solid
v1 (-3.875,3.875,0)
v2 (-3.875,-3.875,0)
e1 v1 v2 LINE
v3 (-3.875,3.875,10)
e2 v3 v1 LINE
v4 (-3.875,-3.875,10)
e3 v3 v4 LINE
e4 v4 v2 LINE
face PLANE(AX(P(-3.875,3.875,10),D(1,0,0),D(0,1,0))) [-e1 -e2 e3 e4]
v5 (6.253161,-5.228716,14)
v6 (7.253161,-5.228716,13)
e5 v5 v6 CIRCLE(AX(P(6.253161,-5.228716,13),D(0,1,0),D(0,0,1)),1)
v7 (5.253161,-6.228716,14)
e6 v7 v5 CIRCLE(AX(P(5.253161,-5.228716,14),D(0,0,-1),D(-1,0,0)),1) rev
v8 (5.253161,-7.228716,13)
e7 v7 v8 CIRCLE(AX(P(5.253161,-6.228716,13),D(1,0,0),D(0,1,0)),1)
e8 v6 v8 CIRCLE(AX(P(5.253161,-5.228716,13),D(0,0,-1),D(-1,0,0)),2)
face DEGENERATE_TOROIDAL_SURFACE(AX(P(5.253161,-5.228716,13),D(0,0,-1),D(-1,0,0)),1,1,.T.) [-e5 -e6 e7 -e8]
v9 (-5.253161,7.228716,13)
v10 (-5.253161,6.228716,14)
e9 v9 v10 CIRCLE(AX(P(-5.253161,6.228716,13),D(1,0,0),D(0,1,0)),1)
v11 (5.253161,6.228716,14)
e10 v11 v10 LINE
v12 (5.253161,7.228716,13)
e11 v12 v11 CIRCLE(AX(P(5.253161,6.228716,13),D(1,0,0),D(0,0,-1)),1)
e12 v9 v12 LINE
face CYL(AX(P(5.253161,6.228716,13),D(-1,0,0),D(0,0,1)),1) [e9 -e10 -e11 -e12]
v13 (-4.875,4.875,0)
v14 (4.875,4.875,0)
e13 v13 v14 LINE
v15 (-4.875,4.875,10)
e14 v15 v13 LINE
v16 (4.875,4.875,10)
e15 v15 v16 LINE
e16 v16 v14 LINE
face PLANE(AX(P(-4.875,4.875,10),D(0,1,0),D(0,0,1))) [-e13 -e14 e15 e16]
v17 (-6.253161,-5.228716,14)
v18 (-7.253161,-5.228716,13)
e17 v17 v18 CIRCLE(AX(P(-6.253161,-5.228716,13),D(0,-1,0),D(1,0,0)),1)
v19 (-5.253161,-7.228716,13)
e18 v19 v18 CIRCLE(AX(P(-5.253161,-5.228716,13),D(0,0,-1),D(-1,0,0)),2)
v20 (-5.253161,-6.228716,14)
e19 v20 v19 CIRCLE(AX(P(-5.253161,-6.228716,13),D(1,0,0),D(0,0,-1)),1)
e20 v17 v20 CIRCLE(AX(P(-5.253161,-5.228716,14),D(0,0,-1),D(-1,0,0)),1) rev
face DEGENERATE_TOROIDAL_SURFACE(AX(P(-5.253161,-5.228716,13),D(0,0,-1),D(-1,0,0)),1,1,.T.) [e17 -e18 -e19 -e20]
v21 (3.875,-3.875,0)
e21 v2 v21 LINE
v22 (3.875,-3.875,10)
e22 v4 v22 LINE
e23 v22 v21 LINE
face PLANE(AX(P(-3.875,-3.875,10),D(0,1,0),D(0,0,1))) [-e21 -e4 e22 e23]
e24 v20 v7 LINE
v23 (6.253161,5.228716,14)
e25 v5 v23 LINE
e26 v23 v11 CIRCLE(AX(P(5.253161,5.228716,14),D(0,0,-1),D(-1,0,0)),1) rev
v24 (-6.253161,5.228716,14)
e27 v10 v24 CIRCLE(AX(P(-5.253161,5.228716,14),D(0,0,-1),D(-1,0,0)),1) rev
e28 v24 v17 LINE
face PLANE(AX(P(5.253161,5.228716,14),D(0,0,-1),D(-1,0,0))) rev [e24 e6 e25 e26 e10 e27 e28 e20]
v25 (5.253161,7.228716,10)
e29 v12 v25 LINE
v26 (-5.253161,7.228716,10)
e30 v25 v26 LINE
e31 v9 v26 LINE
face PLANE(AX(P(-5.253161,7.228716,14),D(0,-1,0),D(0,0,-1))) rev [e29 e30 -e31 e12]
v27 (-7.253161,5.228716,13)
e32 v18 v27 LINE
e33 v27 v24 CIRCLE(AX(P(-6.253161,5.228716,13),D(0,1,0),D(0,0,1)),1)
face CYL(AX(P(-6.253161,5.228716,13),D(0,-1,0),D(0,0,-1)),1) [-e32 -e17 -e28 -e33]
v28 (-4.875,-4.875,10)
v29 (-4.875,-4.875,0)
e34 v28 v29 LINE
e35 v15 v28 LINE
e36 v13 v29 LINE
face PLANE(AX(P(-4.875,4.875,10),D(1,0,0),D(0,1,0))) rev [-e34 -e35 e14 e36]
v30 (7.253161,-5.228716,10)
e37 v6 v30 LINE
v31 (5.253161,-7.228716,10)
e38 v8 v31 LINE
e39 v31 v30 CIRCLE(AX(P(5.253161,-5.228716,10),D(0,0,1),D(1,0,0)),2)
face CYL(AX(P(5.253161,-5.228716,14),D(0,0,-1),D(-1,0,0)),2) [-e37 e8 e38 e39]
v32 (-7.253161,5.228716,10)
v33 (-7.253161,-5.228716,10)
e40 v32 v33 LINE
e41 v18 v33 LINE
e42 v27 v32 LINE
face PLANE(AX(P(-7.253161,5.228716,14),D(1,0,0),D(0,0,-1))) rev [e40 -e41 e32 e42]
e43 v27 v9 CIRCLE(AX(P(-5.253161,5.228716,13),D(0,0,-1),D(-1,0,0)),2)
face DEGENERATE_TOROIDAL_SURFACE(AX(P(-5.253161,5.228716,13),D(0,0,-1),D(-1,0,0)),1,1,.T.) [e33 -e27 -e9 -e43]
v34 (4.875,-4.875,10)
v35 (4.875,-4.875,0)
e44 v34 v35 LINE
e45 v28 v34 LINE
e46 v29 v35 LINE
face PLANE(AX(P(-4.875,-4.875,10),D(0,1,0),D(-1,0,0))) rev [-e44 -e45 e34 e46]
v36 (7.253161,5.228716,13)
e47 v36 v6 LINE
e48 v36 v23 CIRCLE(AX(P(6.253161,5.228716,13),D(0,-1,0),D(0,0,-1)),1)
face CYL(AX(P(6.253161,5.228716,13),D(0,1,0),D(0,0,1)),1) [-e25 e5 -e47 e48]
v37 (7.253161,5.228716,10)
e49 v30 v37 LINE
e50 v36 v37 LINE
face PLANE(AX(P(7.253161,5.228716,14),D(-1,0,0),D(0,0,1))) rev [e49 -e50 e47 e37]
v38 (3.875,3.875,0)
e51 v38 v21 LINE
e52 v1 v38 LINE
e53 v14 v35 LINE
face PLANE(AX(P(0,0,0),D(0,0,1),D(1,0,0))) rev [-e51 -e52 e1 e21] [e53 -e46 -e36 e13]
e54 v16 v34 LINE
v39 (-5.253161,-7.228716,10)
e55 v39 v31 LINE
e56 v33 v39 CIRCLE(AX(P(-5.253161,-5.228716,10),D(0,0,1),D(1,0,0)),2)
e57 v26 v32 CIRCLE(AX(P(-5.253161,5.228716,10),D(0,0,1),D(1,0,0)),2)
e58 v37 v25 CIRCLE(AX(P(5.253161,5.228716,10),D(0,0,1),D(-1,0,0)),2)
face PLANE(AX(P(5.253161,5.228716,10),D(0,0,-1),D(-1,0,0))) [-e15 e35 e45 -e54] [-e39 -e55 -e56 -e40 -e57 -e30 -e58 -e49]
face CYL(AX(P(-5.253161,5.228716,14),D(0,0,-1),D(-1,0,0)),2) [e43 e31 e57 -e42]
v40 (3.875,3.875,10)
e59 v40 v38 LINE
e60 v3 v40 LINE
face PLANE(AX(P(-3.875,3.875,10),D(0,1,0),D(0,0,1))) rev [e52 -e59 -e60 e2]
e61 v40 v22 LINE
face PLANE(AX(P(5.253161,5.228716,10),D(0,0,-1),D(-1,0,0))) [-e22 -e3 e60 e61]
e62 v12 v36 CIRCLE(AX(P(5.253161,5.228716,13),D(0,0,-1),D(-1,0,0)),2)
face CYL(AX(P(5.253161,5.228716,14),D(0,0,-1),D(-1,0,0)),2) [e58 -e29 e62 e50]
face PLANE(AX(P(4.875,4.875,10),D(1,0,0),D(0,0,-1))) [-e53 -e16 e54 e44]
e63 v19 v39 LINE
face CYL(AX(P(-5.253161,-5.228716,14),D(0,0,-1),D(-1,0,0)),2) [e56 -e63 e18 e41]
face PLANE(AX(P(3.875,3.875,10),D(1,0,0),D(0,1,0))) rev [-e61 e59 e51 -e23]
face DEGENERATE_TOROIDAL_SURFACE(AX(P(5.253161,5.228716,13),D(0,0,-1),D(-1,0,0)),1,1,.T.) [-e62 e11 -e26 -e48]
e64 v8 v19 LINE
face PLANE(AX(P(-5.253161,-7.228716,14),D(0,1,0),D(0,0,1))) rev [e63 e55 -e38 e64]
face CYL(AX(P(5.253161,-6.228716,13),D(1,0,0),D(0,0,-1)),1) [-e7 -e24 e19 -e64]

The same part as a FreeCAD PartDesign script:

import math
import FreeCAD as App
import Part
import Sketcher
from FreeCAD import Vector
Q = App.Units.Quantity


def edges_at(feature, points):
    """Names of the edges that pass closest to the given points."""
    edges = feature.Shape.Edges
    near = lambda p: min(range(len(edges)), key=lambda i: edges[i].distToShape(Part.Vertex(*p))[0])
    return sorted({f"Edge{near(p) + 1}" for p in points})


def add_polygon(sketch, points):
    """Adds a closed chain of lines whose ends are joined by coincident constraints."""
    first, n = sketch.GeometryCount, len(points)
    for a, b in zip(points, points[1:] + points[:1]):
        sketch.addGeometry(Part.LineSegment(App.Vector(*a, 0), App.Vector(*b, 0)), False)
    for i in range(n):
        sketch.addConstraint(Sketcher.Constraint("Coincident", first + i, 2, first + (i + 1) % n, 1))

doc = App.newDocument("Part")
body = doc.addObject("PartDesign::Body", "Body")

# Sketch on XY plane
sketch1 = body.newObject("Sketcher::SketchObject", "Sketch")
sketch1.AttachmentSupport = (doc.getObject("XY_Plane"), [""])
sketch1.MapMode = "FlatFace"
add_polygon(sketch1, [(-4.875, 4.875), (-4.875, -4.875), (4.875, -4.875), (4.875, 4.875)])  # lines 0-3
add_polygon(sketch1, [(3.875, -3.875), (-3.875, -3.875), (-3.875, 3.875), (3.875, 3.875)])  # lines 4-7
sketch1.addConstraint([
    Sketcher.Constraint("Vertical", 0),
    Sketcher.Constraint("Horizontal", 1),
    Sketcher.Constraint("Vertical", 2),
    Sketcher.Constraint("Horizontal", 3),
    Sketcher.Constraint("Horizontal", 4),
    Sketcher.Constraint("Vertical", 5),
    Sketcher.Constraint("Horizontal", 6),
    Sketcher.Constraint("Vertical", 7),
    Sketcher.Constraint("Symmetric", 0, 2, 2, 2, -1, 1),
    Sketcher.Constraint("Symmetric", 4, 2, 6, 2, -1, 1),
    Sketcher.Constraint("Equal", 3, 0),
    Sketcher.Constraint("Equal", 6, 5),
    Sketcher.Constraint("DistanceX", 0, 2, 4, 2, Q("1 mm")),
    Sketcher.Constraint("DistanceX", 1, 1, 1, 2, Q("9.75 mm")),
])
pad1 = body.newObject("PartDesign::Pad", "Pad")
pad1.Profile = sketch1
pad1.Length = 10

# Sketch on XY plane
sketch2 = body.newObject("Sketcher::SketchObject", "Sketch001")
sketch2.AttachmentSupport = (doc.getObject("XY_Plane"), [""])
sketch2.MapMode = "FlatFace"
sketch2.AttachmentOffset = App.Placement(Vector(0, 0, 10), App.Rotation())
sketch2.addGeometry([
    Part.LineSegment(Vector(5.253161, 7.228716, 0), Vector(-5.253161, 7.228716, 0)),  # 0
    Part.ArcOfCircle(Part.Circle(Vector(-5.253161, 5.228716, 0), Vector(0, 0, 1), 2), math.radians(90), math.radians(180)),  # 1
    Part.LineSegment(Vector(-7.253161, 5.228716, 0), Vector(-7.253161, -5.228716, 0)),  # 2
    Part.ArcOfCircle(Part.Circle(Vector(-5.253161, -5.228716, 0), Vector(0, 0, 1), 2), math.radians(180), math.radians(270)),  # 3
    Part.LineSegment(Vector(-5.253161, -7.228716, 0), Vector(5.253161, -7.228716, 0)),  # 4
    Part.ArcOfCircle(Part.Circle(Vector(5.253161, -5.228716, 0), Vector(0, 0, 1), 2), math.radians(-90), math.radians(0)),  # 5
    Part.LineSegment(Vector(7.253161, -5.228716, 0), Vector(7.253161, 5.228716, 0)),  # 6
    Part.ArcOfCircle(Part.Circle(Vector(5.253161, 5.228716, 0), Vector(0, 0, 1), 2), math.radians(0), math.radians(90)),  # 7
], False)
sketch2.addConstraint([
    Sketcher.Constraint("Tangent", 0, 2, 1, 1),
    Sketcher.Constraint("Tangent", 1, 2, 2, 1),
    Sketcher.Constraint("Tangent", 2, 2, 3, 1),
    Sketcher.Constraint("Tangent", 3, 2, 4, 1),
    Sketcher.Constraint("Tangent", 4, 2, 5, 1),
    Sketcher.Constraint("Tangent", 5, 2, 6, 1),
    Sketcher.Constraint("Tangent", 6, 2, 7, 1),
    Sketcher.Constraint("Tangent", 7, 2, 0, 1),
    Sketcher.Constraint("Horizontal", 0),
    Sketcher.Constraint("Vertical", 2),
    Sketcher.Constraint("Horizontal", 4),
    Sketcher.Constraint("Vertical", 6),
    Sketcher.Constraint("Equal", 1, 3),
    Sketcher.Constraint("Equal", 3, 5),
    Sketcher.Constraint("Equal", 5, 7),
    Sketcher.Constraint("Symmetric", 1, 3, 5, 3, -1, 1),
    Sketcher.Constraint("Radius", 1, Q("2 mm")),
    Sketcher.Constraint("DistanceX", 0, 2, 0, 1, Q("10.506322 mm")),
    Sketcher.Constraint("DistanceY", 2, 2, 2, 1, Q("10.457433 mm")),
])
pad2 = body.newObject("PartDesign::Pad", "Pad001")
pad2.Profile = sketch2
pad2.Length = 4
doc.recompute()

fillet = body.newObject("PartDesign::Fillet", "Fillet")
fillet.Base = (pad2, edges_at(pad2, [
    (6.667, 6.643, 14),
    (0, 7.229, 14),
    (-6.667, 6.643, 14),
    (-7.253, 0, 14),
    (-6.667, -6.643, 14),
    (0, -7.229, 14),
    (6.667, -6.643, 14),
    (7.253, 0, 14),
]))
fillet.Radius = 1

doc.recompute()
